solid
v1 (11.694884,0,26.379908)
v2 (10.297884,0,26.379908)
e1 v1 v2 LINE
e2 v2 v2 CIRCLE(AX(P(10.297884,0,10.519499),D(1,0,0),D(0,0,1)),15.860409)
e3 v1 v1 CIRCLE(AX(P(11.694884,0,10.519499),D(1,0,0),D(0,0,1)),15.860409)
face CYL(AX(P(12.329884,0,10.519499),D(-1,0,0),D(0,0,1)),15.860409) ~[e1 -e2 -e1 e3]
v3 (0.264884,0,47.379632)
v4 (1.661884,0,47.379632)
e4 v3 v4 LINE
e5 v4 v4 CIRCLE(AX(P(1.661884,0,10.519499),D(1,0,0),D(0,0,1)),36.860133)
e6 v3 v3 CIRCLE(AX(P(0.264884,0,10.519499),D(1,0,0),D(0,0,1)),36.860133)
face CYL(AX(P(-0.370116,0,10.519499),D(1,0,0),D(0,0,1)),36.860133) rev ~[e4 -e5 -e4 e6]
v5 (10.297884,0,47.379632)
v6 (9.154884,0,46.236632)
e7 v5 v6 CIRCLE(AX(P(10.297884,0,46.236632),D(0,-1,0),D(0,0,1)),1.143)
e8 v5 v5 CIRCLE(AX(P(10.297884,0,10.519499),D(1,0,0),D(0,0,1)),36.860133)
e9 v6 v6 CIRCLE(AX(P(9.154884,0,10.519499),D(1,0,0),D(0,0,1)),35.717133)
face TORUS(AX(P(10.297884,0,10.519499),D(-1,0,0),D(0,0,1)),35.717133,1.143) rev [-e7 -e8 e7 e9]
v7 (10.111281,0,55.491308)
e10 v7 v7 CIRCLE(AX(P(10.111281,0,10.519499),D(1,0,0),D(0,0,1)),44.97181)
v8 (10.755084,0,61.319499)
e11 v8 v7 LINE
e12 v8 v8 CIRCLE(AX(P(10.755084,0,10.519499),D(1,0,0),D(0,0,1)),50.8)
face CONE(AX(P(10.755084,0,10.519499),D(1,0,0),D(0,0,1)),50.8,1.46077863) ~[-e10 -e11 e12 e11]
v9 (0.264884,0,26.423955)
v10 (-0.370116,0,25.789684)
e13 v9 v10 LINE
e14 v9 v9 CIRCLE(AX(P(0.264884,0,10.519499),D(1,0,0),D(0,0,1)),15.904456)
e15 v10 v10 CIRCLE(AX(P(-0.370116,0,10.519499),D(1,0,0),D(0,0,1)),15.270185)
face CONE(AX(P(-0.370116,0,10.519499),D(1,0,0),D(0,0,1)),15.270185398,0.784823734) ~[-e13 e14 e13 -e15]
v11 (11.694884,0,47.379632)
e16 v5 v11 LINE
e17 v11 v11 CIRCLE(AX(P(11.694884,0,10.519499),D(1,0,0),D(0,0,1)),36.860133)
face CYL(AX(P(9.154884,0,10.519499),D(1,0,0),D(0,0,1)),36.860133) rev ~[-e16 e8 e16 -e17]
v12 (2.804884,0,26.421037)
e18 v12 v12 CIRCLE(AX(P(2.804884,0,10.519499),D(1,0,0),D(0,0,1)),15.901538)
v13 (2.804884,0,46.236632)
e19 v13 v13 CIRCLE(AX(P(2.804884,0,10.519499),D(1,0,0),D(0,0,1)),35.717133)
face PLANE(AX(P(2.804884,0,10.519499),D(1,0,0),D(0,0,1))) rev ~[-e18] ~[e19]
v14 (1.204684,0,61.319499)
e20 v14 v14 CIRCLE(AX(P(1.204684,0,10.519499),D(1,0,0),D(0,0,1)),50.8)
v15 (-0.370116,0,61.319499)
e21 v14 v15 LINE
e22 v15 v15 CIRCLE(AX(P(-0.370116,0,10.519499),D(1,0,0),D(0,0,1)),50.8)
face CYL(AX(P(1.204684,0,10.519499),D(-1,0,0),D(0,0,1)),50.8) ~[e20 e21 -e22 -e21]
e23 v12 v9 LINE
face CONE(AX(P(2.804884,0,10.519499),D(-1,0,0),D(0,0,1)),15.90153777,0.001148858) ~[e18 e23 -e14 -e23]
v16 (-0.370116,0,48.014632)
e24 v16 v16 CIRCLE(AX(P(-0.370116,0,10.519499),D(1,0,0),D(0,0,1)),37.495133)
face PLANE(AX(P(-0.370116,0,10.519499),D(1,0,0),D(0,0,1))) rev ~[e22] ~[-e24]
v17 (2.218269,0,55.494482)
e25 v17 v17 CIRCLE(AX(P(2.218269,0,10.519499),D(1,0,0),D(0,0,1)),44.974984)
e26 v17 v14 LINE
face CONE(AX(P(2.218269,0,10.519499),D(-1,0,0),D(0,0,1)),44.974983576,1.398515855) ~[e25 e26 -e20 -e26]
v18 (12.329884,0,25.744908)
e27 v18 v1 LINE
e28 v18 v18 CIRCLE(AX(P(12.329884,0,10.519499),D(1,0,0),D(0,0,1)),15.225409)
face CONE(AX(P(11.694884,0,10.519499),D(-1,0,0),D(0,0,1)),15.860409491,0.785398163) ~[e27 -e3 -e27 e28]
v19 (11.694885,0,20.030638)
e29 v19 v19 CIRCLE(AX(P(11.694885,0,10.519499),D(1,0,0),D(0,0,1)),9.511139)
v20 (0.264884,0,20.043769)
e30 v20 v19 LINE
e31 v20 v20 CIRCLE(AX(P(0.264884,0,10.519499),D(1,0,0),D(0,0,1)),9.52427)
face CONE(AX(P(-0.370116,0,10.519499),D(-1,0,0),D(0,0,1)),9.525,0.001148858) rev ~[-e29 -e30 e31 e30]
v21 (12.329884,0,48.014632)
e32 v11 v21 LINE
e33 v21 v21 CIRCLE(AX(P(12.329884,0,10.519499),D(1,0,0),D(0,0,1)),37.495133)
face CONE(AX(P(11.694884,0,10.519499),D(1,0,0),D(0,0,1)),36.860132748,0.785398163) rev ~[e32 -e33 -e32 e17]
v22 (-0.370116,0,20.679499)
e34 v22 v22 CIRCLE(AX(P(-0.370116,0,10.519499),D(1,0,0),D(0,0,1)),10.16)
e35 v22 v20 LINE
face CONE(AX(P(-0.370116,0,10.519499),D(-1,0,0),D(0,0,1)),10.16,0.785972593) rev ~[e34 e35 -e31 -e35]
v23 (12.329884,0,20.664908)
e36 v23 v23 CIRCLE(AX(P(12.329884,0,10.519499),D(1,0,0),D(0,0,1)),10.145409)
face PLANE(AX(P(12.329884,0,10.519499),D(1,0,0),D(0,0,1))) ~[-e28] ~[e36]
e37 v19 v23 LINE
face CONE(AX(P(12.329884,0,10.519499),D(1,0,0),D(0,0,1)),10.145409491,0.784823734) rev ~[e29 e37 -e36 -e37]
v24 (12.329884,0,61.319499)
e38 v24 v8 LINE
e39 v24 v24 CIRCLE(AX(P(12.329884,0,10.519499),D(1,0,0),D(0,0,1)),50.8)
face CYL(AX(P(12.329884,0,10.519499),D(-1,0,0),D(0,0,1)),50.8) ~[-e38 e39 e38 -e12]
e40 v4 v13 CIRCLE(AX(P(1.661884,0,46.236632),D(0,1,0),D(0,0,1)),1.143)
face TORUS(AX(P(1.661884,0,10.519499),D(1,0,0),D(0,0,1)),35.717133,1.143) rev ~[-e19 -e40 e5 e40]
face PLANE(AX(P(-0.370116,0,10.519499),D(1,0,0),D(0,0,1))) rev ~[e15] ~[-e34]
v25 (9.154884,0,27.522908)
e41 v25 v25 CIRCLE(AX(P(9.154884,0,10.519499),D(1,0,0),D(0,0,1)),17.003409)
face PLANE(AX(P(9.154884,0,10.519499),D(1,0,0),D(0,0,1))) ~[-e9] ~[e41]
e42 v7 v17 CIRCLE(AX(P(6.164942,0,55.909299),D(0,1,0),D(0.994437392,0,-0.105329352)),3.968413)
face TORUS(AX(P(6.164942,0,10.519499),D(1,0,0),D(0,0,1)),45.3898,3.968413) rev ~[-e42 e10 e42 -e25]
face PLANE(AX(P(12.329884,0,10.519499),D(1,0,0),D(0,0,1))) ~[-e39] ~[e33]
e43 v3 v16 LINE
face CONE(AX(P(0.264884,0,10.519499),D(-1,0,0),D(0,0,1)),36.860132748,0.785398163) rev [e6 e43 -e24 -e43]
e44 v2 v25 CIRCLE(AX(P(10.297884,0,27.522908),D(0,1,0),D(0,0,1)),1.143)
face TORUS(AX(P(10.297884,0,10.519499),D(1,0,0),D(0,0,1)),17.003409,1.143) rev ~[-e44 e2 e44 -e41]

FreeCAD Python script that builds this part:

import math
import FreeCAD as App
import Part
import Sketcher
from FreeCAD import Vector
Q = App.Units.Quantity


def edges_at(feature, points):
    """Names of the edges that pass closest to the given points."""
    edges = feature.Shape.Edges
    near = lambda p: min(range(len(edges)), key=lambda i: edges[i].distToShape(Part.Vertex(*p))[0])
    return sorted({f"Edge{near(p) + 1}" for p in points})

doc = App.newDocument("Part")
params = doc.addObject("Spreadsheet::Sheet", "Params")
for row, (alias, value) in enumerate([
    ("sketch1_width", "0.5 in"),
    ("sketch1_height", "0.25 in"),
    ("sketch1_width2", "0.125 in"),
    ("sketch1_width3", "0.062 in"),
    ("revolution_angle", "360 deg"),
    ("chamfer_size", "0.025 in"),
    ("fillet_radius", "0.045 in"),
], start=1):
    params.set(f"A{row}", alias)
    params.set(f"B{row}", "=" + value)
    params.setAlias(f"B{row}", alias)

body = doc.addObject("PartDesign::Body", "Body")

# Sketch on XZ plane
sketch1 = body.newObject("Sketcher::SketchObject", "Sketch")
sketch1.AttachmentSupport = (doc.getObject("XZ_Plane"), [""])
sketch1.MapMode = "FlatFace"
sketch1.addGeometry(Part.LineSegment(Vector(-0.4, 47.4, 0), Vector(2.8, 47.4, 0)), False)
sketch1.addGeometry(Part.LineSegment(Vector(2.8, 47.4, 0), Vector(2.8, 26.4, 0)), False)
sketch1.addGeometry(Part.LineSegment(Vector(2.8, 26.4, 0), Vector(-0.4, 26.4, 0)), False)
sketch1.addGeometry(Part.LineSegment(Vector(-0.4, 26.4, 0), Vector(-0.4, 20, 0)), False)
sketch1.addGeometry(Part.LineSegment(Vector(-0.4, 20, 0), Vector(12.3, 20, 0)), False)
sketch1.addGeometry(Part.LineSegment(Vector(12.3, 20, 0), Vector(12.3, 26.4, 0)), False)
sketch1.addGeometry(Part.LineSegment(Vector(12.3, 26.4, 0), Vector(9.2, 26.4, 0)), False)
sketch1.addGeometry(Part.LineSegment(Vector(9.2, 26.4, 0), Vector(9.2, 47.4, 0)), False)
sketch1.addGeometry(Part.LineSegment(Vector(9.2, 47.4, 0), Vector(12.3, 47.4, 0)), False)
sketch1.addGeometry(Part.LineSegment(Vector(12.3, 47.4, 0), Vector(12.3, 61.3, 0)), False)
sketch1.addGeometry(Part.LineSegment(Vector(12.3, 61.3, 0), Vector(10.8, 61.3, 0)), False)
sketch1.addGeometry(Part.LineSegment(Vector(10.8, 61.3, 0), Vector(10.1, 55.5, 0)), False)
sketch1.addGeometry(Part.ArcOfCircle(Part.Circle(Vector(6.2, 55.9, 0), Vector(0, 0, 1), 4), math.radians(-174), math.radians(-6)), False)
sketch1.addGeometry(Part.LineSegment(Vector(2.2, 55.5, 0), Vector(1.2, 61.3, 0)), False)
sketch1.addGeometry(Part.LineSegment(Vector(1.2, 61.3, 0), Vector(-0.4, 61.3, 0)), False)
sketch1.addGeometry(Part.LineSegment(Vector(-0.4, 61.3, 0), Vector(-0.4, 47.4, 0)), False)
sketch1.addGeometry(Part.LineSegment(Vector(-0.4, 10.5, 0), Vector(12.3, 10.5, 0)), True)  # axis
sketch1.addConstraint(Sketcher.Constraint("Coincident", 0, 2, 1, 1))
sketch1.addConstraint(Sketcher.Constraint("Coincident", 1, 2, 2, 1))
sketch1.addConstraint(Sketcher.Constraint("Coincident", 2, 2, 3, 1))
sketch1.addConstraint(Sketcher.Constraint("Coincident", 3, 2, 4, 1))
sketch1.addConstraint(Sketcher.Constraint("Coincident", 4, 2, 5, 1))
sketch1.addConstraint(Sketcher.Constraint("Coincident", 5, 2, 6, 1))
sketch1.addConstraint(Sketcher.Constraint("Coincident", 6, 2, 7, 1))
sketch1.addConstraint(Sketcher.Constraint("Coincident", 7, 2, 8, 1))
sketch1.addConstraint(Sketcher.Constraint("Coincident", 8, 2, 9, 1))
sketch1.addConstraint(Sketcher.Constraint("Coincident", 9, 2, 10, 1))
sketch1.addConstraint(Sketcher.Constraint("Coincident", 10, 2, 11, 1))
sketch1.addConstraint(Sketcher.Constraint("Coincident", 11, 2, 12, 2))
sketch1.addConstraint(Sketcher.Constraint("Coincident", 12, 1, 13, 1))
sketch1.addConstraint(Sketcher.Constraint("Coincident", 13, 2, 14, 1))
sketch1.addConstraint(Sketcher.Constraint("Coincident", 14, 2, 15, 1))
sketch1.addConstraint(Sketcher.Constraint("Coincident", 15, 2, 0, 1))
sketch1.addConstraint(Sketcher.Constraint("Horizontal", 0))
sketch1.addConstraint(Sketcher.Constraint("Vertical", 1))
sketch1.addConstraint(Sketcher.Constraint("Vertical", 3))
sketch1.addConstraint(Sketcher.Constraint("Vertical", 5))
sketch1.addConstraint(Sketcher.Constraint("Horizontal", 6))
sketch1.addConstraint(Sketcher.Constraint("Vertical", 7))
sketch1.addConstraint(Sketcher.Constraint("Horizontal", 8))
sketch1.addConstraint(Sketcher.Constraint("Vertical", 9))
sketch1.addConstraint(Sketcher.Constraint("Horizontal", 10))
sketch1.addConstraint(Sketcher.Constraint("Horizontal", 14))
sketch1.addConstraint(Sketcher.Constraint("Vertical", 15))
sketch1.addConstraint(Sketcher.Constraint("Horizontal", 16))
sketch1.addConstraint(Sketcher.Constraint("Parallel", 2, 4))
sketch1.addConstraint(Sketcher.Constraint("Horizontal", 0, 2, 7, 2))
sketch1.addConstraint(Sketcher.Constraint("Horizontal", 10, 2, 13, 2))
sketch1.addConstraint(Sketcher.Constraint("Vertical", 5, 2, 8, 2))
sketch1.addConstraint(Sketcher.Constraint("Vertical", 3, 2, 14, 2))
sketch1.addConstraint(Sketcher.Constraint("Vertical", 15, 2, 16, 1))
sketch1.addConstraint(Sketcher.Constraint("Vertical", 9, 2, 16, 2))
sketch1.addConstraint(Sketcher.Constraint("Equal", 0, 6))
sketch1.addConstraint(Sketcher.Constraint("Equal", 10, 14))
sketch1.addConstraint(Sketcher.Constraint("DistanceX", 16, 1, 16, 2, Q("0.5 in")))
sketch1.addConstraint(Sketcher.Constraint("DistanceY", 5, 1, 5, 2, Q("0.25 in")))
sketch1.addConstraint(Sketcher.Constraint("DistanceX", 0, 1, 0, 2, Q("0.125 in")))
sketch1.addConstraint(Sketcher.Constraint("DistanceX", 10, 2, 10, 1, Q("0.062 in")))
sketch1.addConstraint(Sketcher.Constraint("DistanceY", 3, 2, 12, 3, Q("1.412 in")))
sketch1.addConstraint(Sketcher.Constraint("DistanceY", 12, 3, 9, 2, Q("0.213 in")))
sketch1.addConstraint(Sketcher.Constraint("DistanceY", 16, 1, 3, 2, Q("0.375 in")))
sketch1.addConstraint(Sketcher.Constraint("Radius", 12, 3.968413))
sketch1.addConstraint(Sketcher.Constraint("DistanceY", -1, 1, 12, 3, 55.909299))
sketch1.addConstraint(Sketcher.Constraint("Distance", 11, 5.863641))
sketch1.addConstraint(Sketcher.Constraint("DistanceY", 1, 2, 1, 1, 20.958595))
sketch1.addConstraint(Sketcher.Constraint("DistanceY", 3, 2, 3, 1, 6.380185))
sketch1.addConstraint(Sketcher.Constraint("DistanceY", 7, 1, 7, 2, 20.999723))
sketch1.addConstraint(Sketcher.Constraint("DistanceX", -1, 1, 11, 2, 10.111281))
sketch1.addConstraint(Sketcher.Constraint("DistanceY", -1, 1, 11, 2, 55.491308))
sketch1.addConstraint(Sketcher.Constraint("DistanceX", -1, 1, 12, 1, 2.218269))
sketch1.setExpression("Constraints[37]", "Params.sketch1_width")
sketch1.setExpression("Constraints[38]", "Params.sketch1_height")
sketch1.setExpression("Constraints[39]", "Params.sketch1_width2")
sketch1.setExpression("Constraints[40]", "Params.sketch1_width3")
revolution = body.newObject("PartDesign::Revolution", "Revolution")
revolution.Profile = sketch1
revolution.ReferenceAxis = (sketch1, ["Axis0"])
revolution.setExpression("Angle", "Params.revolution_angle")
doc.recompute()

chamfer = body.newObject("PartDesign::Chamfer", "Chamfer")
chamfer.Base = (revolution, edges_at(revolution, [
    (12.33, 0, -26.341),
    (12.33, 0, -5.341),
    (12.33, 0, 1.009),
    (-0.37, 0, 0.994),
    (-0.37, 0, -5.386),
    (-0.37, 0, -26.341),
]))
chamfer.setExpression("Size", "Params.chamfer_size")
doc.recompute()

fillet = body.newObject("PartDesign::Fillet", "Fillet")
fillet.Base = (chamfer, edges_at(chamfer, [(2.805, 0, -26.341), (9.155, 0, -26.341), (9.155, 0, -5.341)]))
fillet.setExpression("Radius", "Params.fillet_radius")

doc.recompute()
